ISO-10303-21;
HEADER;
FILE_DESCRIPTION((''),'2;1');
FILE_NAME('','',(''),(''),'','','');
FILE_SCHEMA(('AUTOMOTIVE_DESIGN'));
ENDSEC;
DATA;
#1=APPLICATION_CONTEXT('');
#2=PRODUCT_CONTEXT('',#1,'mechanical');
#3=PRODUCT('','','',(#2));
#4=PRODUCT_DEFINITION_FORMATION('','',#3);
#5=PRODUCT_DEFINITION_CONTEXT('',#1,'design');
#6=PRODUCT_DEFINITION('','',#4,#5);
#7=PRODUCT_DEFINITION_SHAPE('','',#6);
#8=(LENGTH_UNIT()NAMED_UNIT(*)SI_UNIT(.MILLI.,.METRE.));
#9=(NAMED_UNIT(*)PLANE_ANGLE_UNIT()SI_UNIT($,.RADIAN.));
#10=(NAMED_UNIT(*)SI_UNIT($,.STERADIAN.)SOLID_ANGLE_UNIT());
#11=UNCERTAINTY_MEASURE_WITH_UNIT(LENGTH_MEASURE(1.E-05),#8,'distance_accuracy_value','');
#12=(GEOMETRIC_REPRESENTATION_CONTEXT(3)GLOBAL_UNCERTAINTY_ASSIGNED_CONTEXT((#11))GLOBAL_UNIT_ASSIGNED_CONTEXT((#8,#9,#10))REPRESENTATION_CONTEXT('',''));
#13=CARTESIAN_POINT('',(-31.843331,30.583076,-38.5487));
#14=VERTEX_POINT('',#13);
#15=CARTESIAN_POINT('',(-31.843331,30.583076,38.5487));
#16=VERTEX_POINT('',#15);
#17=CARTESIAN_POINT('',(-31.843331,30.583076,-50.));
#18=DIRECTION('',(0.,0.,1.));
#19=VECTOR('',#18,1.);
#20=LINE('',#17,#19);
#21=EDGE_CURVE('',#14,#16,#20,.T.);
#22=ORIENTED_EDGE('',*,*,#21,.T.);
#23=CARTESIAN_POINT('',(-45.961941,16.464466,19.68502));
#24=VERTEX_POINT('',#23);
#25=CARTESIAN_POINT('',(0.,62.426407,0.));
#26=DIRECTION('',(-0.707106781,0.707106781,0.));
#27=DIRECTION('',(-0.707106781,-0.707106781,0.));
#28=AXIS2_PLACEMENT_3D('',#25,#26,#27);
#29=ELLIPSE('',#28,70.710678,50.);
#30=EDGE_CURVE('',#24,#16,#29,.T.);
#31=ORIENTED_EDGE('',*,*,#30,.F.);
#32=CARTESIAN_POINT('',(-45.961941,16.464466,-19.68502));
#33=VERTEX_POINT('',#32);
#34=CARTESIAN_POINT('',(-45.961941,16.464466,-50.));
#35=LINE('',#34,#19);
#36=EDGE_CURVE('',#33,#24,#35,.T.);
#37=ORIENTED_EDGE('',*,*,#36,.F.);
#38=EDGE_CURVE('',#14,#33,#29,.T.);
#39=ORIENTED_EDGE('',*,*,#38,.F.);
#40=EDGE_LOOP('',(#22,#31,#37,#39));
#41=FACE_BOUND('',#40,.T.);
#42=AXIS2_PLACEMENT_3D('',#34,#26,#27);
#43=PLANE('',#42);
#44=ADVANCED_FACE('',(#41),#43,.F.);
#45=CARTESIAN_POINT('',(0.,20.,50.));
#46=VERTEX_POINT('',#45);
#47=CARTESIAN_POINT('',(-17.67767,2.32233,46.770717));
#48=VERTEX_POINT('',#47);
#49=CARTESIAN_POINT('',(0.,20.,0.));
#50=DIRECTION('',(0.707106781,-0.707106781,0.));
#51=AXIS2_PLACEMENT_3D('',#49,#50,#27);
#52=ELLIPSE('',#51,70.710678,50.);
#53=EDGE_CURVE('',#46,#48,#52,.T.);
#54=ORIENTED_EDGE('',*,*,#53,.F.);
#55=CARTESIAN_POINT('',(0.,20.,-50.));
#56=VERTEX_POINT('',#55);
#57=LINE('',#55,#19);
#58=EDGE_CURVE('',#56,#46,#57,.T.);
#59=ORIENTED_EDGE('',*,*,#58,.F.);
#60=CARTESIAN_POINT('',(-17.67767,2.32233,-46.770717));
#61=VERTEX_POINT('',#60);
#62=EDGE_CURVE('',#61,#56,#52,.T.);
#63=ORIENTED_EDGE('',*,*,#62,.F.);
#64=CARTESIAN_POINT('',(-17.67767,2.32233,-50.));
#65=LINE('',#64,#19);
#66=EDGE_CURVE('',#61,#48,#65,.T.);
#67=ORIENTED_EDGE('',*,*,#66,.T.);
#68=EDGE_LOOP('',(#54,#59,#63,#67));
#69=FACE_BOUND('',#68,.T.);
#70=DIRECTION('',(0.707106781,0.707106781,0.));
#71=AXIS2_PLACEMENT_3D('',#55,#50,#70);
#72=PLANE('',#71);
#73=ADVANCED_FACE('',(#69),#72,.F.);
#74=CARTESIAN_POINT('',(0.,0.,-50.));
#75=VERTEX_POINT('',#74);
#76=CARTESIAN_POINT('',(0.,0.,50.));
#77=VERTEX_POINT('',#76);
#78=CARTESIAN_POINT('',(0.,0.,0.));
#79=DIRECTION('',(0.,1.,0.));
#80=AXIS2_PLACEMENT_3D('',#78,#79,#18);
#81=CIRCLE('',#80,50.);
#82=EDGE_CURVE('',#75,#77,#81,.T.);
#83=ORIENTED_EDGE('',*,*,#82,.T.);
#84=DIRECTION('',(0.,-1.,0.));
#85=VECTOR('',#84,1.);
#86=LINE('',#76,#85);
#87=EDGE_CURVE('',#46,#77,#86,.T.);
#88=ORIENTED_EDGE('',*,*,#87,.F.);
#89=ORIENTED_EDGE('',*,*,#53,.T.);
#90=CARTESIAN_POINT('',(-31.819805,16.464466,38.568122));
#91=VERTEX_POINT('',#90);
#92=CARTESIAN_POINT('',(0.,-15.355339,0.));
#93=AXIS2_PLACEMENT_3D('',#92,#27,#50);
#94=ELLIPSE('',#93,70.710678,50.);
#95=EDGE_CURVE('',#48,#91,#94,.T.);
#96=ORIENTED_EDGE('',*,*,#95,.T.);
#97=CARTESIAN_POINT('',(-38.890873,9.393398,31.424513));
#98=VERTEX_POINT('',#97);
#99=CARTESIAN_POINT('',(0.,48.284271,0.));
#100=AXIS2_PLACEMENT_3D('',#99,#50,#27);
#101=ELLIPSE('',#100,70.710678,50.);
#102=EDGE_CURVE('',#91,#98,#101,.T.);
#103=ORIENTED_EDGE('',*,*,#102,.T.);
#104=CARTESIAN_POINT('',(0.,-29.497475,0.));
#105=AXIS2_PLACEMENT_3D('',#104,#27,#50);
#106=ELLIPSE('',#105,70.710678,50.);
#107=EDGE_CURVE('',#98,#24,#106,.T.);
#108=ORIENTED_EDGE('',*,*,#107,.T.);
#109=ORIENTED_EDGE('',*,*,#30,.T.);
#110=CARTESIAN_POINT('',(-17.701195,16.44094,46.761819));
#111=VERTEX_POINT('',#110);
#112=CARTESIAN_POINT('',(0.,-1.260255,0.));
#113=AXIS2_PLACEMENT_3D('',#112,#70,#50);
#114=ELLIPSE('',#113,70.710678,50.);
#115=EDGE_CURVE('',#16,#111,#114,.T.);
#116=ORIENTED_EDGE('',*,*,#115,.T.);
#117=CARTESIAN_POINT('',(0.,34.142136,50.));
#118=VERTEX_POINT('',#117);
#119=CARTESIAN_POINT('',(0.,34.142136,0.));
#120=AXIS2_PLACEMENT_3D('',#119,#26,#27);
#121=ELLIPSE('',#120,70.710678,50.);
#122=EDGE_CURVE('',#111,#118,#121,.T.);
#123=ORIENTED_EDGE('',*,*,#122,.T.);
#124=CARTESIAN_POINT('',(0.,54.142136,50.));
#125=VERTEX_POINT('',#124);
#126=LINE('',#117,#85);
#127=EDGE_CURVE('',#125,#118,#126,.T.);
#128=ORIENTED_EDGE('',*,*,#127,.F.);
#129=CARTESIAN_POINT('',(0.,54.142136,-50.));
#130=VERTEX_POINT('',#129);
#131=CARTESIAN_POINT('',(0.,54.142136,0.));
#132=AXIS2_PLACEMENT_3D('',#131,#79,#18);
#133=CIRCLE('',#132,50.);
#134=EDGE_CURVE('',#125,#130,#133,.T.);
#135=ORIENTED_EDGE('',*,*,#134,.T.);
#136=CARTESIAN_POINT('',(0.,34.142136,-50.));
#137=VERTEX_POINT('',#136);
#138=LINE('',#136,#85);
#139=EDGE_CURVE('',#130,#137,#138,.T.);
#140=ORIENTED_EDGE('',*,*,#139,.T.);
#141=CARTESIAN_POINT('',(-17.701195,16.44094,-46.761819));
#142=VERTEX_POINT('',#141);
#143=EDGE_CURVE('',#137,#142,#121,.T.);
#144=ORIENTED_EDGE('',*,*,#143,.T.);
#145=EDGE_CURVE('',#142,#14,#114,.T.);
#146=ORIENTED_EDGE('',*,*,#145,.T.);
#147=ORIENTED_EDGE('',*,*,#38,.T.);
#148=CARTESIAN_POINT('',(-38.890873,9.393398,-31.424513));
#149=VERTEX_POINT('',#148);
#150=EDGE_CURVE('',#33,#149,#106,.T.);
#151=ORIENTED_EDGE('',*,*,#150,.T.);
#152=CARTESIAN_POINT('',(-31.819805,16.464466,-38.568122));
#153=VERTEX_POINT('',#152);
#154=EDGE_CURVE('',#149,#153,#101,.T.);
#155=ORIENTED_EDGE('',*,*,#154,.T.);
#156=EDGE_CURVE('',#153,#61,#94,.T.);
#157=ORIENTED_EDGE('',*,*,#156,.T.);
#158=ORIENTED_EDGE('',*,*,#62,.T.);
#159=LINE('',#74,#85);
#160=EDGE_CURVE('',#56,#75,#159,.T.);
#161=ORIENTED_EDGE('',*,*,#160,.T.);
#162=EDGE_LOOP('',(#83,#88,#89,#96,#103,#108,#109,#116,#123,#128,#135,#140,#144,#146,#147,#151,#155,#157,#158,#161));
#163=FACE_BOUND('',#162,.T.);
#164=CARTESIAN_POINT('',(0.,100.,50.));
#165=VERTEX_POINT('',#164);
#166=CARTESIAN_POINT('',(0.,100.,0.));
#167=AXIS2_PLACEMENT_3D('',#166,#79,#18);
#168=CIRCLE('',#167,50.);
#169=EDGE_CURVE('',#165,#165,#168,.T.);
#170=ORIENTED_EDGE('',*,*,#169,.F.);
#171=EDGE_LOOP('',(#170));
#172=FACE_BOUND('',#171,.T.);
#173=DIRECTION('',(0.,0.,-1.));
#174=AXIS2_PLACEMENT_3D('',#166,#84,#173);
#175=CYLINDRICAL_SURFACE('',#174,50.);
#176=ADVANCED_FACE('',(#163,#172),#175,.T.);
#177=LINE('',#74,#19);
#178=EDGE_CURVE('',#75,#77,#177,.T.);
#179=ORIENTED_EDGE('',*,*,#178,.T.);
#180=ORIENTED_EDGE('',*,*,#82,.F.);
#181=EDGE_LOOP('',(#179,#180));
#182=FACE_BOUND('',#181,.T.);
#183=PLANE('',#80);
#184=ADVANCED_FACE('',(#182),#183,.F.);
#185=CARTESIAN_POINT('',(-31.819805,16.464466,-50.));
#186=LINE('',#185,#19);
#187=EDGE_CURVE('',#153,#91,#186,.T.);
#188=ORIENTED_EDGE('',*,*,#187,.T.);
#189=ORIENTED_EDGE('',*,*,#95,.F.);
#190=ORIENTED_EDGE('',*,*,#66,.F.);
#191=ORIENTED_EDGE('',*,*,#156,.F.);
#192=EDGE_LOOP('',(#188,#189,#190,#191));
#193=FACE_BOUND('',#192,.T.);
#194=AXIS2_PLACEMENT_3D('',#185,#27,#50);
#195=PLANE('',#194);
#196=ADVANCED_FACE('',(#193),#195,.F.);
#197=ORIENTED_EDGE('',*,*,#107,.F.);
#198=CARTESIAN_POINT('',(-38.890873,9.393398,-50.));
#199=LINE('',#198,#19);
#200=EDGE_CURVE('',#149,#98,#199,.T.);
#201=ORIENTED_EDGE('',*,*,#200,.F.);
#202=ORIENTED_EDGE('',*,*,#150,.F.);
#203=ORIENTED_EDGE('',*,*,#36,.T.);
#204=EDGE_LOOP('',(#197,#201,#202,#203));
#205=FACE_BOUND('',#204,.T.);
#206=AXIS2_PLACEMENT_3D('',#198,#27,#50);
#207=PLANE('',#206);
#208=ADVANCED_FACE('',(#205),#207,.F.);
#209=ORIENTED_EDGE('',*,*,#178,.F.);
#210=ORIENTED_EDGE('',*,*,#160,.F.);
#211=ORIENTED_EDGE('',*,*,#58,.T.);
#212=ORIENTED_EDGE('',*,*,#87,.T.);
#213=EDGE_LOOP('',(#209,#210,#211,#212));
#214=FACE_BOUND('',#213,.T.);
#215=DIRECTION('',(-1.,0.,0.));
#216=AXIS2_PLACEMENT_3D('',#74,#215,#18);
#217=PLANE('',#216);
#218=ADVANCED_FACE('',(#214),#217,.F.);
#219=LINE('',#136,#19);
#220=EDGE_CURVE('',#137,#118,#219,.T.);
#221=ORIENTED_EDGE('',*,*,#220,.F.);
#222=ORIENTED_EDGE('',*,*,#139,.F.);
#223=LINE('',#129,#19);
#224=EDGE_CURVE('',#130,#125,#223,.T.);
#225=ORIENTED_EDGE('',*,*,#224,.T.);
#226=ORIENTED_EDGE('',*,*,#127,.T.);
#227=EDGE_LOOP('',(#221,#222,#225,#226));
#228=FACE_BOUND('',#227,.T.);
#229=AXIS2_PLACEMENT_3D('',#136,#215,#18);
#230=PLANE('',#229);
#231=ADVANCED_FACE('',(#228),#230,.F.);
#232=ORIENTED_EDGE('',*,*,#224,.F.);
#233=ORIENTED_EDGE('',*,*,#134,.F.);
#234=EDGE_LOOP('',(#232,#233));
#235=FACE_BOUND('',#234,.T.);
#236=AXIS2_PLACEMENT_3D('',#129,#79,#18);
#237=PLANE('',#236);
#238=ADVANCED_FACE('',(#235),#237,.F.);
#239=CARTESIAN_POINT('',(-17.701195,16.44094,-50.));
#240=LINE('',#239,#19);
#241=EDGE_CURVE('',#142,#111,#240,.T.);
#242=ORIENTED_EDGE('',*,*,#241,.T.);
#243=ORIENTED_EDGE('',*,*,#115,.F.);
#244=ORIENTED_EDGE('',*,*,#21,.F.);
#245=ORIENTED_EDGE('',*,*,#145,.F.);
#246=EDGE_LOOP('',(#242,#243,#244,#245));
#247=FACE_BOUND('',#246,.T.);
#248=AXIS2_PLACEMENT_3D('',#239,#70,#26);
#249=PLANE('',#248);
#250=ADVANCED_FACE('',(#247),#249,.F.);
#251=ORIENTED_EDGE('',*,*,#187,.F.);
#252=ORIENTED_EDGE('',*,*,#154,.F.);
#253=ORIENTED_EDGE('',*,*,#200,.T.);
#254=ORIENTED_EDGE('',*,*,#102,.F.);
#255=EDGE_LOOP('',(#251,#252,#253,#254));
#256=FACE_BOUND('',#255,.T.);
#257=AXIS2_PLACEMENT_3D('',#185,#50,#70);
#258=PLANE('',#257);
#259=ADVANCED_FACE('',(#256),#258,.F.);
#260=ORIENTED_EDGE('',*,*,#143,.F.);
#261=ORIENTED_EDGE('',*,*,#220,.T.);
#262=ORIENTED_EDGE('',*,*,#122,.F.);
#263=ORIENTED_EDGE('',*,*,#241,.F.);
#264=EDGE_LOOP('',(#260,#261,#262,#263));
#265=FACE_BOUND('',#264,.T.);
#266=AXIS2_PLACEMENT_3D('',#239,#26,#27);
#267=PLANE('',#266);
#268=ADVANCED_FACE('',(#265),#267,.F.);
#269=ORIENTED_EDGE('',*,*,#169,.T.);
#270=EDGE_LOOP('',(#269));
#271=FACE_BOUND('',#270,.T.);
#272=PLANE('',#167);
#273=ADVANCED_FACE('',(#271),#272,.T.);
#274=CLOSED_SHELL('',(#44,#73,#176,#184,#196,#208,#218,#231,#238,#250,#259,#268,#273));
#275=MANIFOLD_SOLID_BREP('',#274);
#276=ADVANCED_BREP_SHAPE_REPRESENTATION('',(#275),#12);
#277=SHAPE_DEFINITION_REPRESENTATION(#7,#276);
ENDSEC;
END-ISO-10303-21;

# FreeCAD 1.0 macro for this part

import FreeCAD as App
import Part
import Sketcher

V = App.Vector

doc = App.newDocument("Part")
body = doc.addObject("PartDesign::Body", "Body")

sketch1 = body.newObject("Sketcher::SketchObject", "Sketch")
sketch1.AttachmentSupport = (doc.getObject("XZ_Plane"), [""])
sketch1.MapMode = "FlatFace"
sketch1.addGeometry(Part.Circle(V(0, 0, 0), V(0, 0, 1), 50), False)
sketch1.addConstraint([
    Sketcher.Constraint("Coincident", 0, 3, -1, 1),
    Sketcher.Constraint("Diameter", 0, 100.0),
])
pad1 = body.newObject("PartDesign::Pad", "Pad")
pad1.Profile = sketch1
pad1.Length = 100
pad1.Reversed = True

sketch2 = body.newObject("Sketcher::SketchObject", "Sketch001")
sketch2.AttachmentSupport = (doc.getObject("XY_Plane"), [""])
sketch2.MapMode = "FlatFace"
sketch2.addGeometry([
    Part.LineSegment(V(0, 20, 0), V(0, 0, 0)),
    Part.LineSegment(V(0, 0, 0), V(63.983038, 0, 0)),
    Part.LineSegment(V(63.983038, 0, 0), V(63.983038, 54.142136, 0)),
    Part.LineSegment(V(63.983038, 54.142136, 0), V(0, 54.142136, 0)),
    Part.LineSegment(V(0, 54.142136, 0), V(0, 34.142136, 0)),
    Part.LineSegment(V(0, 34.142136, 0), V(-17.701195, 16.44094, 0)),
    Part.LineSegment(V(-17.701195, 16.44094, 0), V(-31.843331, 30.583076, 0)),
    Part.LineSegment(V(-31.843331, 30.583076, 0), V(-45.961941, 16.464466, 0)),
    Part.LineSegment(V(-45.961941, 16.464466, 0), V(-38.890873, 9.393398, 0)),
    Part.LineSegment(V(-38.890873, 9.393398, 0), V(-31.819805, 16.464466, 0)),
    Part.LineSegment(V(-31.819805, 16.464466, 0), V(-17.67767, 2.32233, 0)),
    Part.LineSegment(V(-17.67767, 2.32233, 0), V(0, 20, 0)),
], False)
sketch2.addConstraint([
    Sketcher.Constraint("Coincident", 0, 2, 1, 1),
    Sketcher.Constraint("Coincident", 1, 2, 2, 1),
    Sketcher.Constraint("Coincident", 2, 2, 3, 1),
    Sketcher.Constraint("Coincident", 3, 2, 4, 1),
    Sketcher.Constraint("Coincident", 4, 2, 5, 1),
    Sketcher.Constraint("Coincident", 5, 2, 6, 1),
    Sketcher.Constraint("Coincident", 6, 2, 7, 1),
    Sketcher.Constraint("Coincident", 7, 2, 8, 1),
    Sketcher.Constraint("Coincident", 8, 2, 9, 1),
    Sketcher.Constraint("Coincident", 9, 2, 10, 1),
    Sketcher.Constraint("Coincident", 10, 2, 11, 1),
    Sketcher.Constraint("Coincident", 11, 2, 0, 1),
    Sketcher.Constraint("Vertical", 0),
    Sketcher.Constraint("Horizontal", 1),
    Sketcher.Constraint("Vertical", 2),
    Sketcher.Constraint("Horizontal", 3),
    Sketcher.Constraint("Vertical", 4),
    Sketcher.Constraint("Coincident", 0, 2, -1, 1),
    Sketcher.Constraint("PointOnObject", 3, 2, -2),
    Sketcher.Constraint("Perpendicular", 5, 6),
    Sketcher.Constraint("Perpendicular", 6, 7),
    Sketcher.Constraint("Perpendicular", 7, 8),
    Sketcher.Constraint("Perpendicular", 8, 9),
    Sketcher.Constraint("Perpendicular", 9, 10),
    Sketcher.Constraint("Perpendicular", 10, 11),
    Sketcher.Constraint("Horizontal", 7, 2, 9, 2),
    Sketcher.Constraint("Equal", 0, 4),
    Sketcher.Constraint("Equal", 8, 9),
    Sketcher.Constraint("Equal", 6, 10),
    Sketcher.Constraint("DistanceY", 0, 2, 0, 1, 20.0),
    Sketcher.Constraint("Distance", 6, 20.0),
    Sketcher.Constraint("Distance", 8, 10.0),
    Sketcher.Constraint("Distance", 11, 25.0),
    Sketcher.Constraint("Distance", 5, 25.03327),
    Sketcher.Constraint("DistanceX", 1, 1, 1, 2, 63.983038),
])
pocket1 = body.newObject("PartDesign::Pocket", "Pocket")
pocket1.Profile = sketch2
pocket1.Type = "ThroughAll"
pocket1.Midplane = True

doc.recompute()
